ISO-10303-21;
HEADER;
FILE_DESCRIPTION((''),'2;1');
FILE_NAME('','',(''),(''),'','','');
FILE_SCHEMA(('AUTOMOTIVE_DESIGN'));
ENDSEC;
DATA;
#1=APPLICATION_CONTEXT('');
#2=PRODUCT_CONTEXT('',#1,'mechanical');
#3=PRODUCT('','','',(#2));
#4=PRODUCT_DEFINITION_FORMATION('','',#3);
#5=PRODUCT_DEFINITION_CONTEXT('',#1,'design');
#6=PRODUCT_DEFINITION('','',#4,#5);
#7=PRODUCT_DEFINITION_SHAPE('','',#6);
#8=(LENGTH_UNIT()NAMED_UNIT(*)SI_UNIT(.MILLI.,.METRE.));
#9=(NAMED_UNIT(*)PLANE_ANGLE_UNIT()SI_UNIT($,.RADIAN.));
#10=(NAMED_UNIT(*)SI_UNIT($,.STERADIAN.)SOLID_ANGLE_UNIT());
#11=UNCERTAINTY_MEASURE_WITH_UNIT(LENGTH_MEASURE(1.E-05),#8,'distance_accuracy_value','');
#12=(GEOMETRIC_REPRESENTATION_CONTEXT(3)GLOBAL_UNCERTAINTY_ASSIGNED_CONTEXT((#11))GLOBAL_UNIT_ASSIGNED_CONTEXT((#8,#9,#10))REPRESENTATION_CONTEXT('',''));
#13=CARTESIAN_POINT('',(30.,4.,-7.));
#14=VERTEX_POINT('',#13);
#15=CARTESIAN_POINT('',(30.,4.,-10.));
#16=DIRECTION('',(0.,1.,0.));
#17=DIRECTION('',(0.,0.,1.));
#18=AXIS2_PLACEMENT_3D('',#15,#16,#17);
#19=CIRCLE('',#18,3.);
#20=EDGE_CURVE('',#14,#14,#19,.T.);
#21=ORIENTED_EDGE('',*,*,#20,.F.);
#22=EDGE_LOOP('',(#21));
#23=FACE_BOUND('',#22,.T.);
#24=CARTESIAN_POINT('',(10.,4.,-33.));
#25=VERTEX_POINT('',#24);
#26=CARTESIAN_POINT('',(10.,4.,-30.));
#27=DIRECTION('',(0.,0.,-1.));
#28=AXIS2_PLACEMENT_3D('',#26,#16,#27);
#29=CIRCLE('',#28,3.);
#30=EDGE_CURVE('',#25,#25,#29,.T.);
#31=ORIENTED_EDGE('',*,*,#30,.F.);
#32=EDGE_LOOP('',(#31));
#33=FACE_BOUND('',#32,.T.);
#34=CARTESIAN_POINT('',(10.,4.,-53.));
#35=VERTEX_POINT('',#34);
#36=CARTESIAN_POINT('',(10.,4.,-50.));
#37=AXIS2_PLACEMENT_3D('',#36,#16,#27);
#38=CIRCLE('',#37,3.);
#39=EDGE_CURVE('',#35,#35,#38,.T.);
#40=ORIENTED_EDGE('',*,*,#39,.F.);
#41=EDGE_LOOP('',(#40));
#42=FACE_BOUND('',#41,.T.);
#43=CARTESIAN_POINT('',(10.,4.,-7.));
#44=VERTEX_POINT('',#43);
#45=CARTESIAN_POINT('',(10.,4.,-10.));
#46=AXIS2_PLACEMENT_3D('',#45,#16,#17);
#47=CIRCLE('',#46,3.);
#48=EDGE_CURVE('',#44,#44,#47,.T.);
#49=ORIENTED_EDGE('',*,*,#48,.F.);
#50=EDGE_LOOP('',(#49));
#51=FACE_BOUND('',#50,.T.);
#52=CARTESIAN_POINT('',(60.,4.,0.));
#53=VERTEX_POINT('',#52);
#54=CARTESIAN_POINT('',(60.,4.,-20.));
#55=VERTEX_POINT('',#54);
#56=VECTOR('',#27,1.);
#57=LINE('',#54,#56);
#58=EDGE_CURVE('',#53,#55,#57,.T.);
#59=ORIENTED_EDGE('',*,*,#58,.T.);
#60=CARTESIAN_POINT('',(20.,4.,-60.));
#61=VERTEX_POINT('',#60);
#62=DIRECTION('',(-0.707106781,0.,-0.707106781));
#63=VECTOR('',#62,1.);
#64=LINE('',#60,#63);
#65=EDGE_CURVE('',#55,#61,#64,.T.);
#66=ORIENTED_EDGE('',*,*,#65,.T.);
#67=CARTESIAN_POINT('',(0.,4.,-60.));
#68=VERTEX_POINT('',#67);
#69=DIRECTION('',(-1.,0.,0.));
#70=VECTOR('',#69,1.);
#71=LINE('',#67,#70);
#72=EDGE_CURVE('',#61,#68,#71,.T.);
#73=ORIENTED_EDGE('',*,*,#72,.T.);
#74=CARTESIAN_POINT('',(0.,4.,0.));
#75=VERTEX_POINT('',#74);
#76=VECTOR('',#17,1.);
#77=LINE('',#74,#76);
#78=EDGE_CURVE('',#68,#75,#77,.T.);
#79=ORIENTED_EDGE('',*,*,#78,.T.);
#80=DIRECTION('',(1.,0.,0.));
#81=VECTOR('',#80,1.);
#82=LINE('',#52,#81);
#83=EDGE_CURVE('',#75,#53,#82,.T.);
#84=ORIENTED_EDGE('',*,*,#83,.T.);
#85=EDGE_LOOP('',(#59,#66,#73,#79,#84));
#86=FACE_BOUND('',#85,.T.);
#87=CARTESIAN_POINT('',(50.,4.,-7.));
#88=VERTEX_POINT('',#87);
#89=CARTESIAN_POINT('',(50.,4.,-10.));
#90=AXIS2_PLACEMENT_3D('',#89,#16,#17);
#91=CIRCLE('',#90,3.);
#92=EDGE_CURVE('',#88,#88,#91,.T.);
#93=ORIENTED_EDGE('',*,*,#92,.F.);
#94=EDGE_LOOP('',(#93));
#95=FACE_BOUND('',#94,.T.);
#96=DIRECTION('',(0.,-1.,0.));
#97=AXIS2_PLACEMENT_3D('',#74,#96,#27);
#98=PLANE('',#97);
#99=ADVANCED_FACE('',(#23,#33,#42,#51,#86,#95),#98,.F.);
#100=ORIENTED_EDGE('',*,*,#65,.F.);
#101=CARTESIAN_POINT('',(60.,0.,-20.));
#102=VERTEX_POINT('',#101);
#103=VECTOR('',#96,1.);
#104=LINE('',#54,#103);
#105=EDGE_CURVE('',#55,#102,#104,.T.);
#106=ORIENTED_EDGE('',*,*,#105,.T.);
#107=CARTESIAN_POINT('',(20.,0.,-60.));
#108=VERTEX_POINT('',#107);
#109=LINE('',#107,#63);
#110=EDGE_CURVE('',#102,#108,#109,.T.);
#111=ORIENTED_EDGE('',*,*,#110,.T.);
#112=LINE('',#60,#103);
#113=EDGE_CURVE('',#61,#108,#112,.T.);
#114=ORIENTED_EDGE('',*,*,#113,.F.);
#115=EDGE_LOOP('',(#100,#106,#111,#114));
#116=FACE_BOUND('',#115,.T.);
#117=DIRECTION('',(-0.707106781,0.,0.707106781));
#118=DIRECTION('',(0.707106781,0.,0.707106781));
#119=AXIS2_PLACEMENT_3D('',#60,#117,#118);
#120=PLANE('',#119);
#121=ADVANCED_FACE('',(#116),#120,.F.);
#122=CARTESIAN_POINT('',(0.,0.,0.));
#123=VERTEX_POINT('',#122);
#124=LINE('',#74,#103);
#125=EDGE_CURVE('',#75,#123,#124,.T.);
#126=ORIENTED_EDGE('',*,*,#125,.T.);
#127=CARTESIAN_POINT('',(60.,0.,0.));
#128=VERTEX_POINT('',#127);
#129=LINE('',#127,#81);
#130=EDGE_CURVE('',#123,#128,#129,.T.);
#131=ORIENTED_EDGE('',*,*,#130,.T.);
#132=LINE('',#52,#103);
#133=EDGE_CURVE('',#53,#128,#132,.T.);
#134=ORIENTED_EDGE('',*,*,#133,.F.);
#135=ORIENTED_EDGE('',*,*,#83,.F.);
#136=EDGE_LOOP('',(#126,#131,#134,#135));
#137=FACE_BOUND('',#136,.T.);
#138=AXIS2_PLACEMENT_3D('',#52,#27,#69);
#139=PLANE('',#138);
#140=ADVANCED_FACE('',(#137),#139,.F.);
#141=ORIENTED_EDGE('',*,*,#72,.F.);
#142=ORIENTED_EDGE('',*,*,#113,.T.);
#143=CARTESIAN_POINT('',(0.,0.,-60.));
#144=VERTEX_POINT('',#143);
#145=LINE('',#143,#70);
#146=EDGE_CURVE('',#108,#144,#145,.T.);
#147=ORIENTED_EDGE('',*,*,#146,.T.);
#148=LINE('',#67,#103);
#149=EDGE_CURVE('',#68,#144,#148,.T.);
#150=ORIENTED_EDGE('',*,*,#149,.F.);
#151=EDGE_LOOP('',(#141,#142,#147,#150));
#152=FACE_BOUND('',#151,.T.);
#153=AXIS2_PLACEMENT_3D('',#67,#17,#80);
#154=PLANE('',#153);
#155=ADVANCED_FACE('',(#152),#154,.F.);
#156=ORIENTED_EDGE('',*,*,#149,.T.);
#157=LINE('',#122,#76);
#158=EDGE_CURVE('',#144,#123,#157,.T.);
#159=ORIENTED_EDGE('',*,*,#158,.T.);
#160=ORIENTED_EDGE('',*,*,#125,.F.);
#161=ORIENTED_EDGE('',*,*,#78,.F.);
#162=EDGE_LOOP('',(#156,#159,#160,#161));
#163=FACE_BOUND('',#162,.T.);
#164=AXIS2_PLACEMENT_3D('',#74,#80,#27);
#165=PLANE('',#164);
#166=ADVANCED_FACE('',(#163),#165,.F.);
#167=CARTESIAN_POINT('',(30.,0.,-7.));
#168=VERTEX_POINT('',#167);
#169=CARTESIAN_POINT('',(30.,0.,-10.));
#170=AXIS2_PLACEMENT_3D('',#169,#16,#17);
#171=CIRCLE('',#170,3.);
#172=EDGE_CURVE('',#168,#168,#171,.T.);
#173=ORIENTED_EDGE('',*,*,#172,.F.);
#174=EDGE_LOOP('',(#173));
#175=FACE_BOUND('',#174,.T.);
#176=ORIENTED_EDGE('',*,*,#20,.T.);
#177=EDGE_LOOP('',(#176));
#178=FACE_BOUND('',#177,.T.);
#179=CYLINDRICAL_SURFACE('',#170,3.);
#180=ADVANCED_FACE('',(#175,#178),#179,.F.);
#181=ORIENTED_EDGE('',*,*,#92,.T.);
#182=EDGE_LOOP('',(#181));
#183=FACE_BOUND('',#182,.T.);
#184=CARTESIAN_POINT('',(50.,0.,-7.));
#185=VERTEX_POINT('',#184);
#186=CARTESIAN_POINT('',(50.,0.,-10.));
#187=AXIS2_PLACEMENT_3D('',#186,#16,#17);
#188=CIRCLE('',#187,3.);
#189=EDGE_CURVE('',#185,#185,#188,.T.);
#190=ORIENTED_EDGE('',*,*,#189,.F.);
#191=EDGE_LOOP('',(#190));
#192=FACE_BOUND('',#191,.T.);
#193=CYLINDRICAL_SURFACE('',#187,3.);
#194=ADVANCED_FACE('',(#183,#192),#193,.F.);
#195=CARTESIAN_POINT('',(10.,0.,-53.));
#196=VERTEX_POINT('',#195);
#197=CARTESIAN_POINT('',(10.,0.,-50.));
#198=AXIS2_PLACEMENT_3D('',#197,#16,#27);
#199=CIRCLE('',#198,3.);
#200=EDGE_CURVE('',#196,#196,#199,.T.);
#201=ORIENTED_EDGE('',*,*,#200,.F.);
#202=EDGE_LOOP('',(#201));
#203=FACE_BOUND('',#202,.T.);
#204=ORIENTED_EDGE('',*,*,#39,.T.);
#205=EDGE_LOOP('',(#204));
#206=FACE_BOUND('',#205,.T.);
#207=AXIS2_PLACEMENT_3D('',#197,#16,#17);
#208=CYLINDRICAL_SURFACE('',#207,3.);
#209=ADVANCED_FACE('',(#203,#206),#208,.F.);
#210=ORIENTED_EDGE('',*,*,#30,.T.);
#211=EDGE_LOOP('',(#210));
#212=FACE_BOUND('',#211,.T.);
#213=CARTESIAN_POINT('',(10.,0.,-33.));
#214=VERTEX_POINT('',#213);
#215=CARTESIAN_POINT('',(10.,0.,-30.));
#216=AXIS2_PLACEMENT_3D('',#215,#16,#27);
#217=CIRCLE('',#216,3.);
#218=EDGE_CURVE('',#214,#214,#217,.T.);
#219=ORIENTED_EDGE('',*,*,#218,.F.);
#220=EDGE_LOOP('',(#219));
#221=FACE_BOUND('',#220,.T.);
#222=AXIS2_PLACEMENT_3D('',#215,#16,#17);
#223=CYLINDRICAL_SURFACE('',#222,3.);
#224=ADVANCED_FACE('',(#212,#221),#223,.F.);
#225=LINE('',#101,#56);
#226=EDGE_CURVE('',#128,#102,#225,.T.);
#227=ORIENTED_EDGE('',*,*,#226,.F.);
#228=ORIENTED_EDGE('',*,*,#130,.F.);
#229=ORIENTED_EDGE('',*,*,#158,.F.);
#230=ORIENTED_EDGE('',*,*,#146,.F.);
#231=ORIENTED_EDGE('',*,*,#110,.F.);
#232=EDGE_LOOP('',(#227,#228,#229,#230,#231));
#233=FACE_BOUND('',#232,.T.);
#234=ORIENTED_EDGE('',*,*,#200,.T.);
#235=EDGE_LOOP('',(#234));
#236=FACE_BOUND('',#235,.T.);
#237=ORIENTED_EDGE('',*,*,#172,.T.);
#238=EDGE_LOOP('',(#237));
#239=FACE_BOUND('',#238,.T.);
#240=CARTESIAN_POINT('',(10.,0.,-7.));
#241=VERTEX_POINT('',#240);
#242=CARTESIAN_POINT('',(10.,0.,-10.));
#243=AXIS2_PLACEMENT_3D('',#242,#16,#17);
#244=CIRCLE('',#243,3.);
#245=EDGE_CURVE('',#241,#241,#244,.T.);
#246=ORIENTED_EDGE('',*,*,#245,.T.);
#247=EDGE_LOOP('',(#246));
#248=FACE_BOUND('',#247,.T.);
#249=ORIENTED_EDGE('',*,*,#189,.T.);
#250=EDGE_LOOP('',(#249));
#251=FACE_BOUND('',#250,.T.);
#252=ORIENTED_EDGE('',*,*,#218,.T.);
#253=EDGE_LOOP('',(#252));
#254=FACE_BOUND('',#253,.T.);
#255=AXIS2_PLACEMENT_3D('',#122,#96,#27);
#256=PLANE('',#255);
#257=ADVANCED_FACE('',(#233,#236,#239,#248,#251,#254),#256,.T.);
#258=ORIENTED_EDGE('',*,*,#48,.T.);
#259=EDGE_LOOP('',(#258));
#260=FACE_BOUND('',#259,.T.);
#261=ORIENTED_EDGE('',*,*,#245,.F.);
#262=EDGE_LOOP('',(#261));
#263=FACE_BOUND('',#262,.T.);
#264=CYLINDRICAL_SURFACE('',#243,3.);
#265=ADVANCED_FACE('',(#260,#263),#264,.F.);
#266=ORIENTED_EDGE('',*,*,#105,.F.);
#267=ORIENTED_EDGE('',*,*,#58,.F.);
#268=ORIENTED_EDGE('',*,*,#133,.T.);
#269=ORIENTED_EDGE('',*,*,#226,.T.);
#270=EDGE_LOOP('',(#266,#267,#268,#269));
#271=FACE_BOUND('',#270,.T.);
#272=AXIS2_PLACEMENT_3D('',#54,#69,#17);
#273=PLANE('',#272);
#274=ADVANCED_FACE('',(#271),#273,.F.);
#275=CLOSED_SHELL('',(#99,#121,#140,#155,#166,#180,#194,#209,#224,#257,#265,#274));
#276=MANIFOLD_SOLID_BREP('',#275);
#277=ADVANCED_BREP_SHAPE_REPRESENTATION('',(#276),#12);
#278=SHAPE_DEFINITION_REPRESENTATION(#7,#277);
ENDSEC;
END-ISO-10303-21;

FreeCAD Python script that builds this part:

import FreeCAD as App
import Part
import Sketcher

doc = App.newDocument("Part")
body = doc.addObject("PartDesign::Body", "Body")

sketch1 = doc.addObject("Sketcher::SketchObject", "Sketch")
body.addObject(sketch1)
sketch1.AttachmentSupport = (doc.XZ_Plane, [""])
sketch1.MapMode = "FlatFace"
sketch1.addGeometry([
    Part.LineSegment(App.Vector(0, -60, 0), App.Vector(0, 0, 0)),
    Part.LineSegment(App.Vector(0, 0, 0), App.Vector(60, 0, 0)),
    Part.LineSegment(App.Vector(60, 0, 0), App.Vector(60, -20, 0)),
    Part.LineSegment(App.Vector(60, -20, 0), App.Vector(20, -60, 0)),
    Part.LineSegment(App.Vector(20, -60, 0), App.Vector(0, -60, 0)),
], False)
sketch1.addConstraint([
    Sketcher.Constraint("Coincident", 0, 2, 1, 1),
    Sketcher.Constraint("Coincident", 1, 2, 2, 1),
    Sketcher.Constraint("Coincident", 2, 2, 3, 1),
    Sketcher.Constraint("Coincident", 3, 2, 4, 1),
    Sketcher.Constraint("Coincident", 4, 2, 0, 1),
    Sketcher.Constraint("Vertical", 0),
    Sketcher.Constraint("Horizontal", 1),
    Sketcher.Constraint("Vertical", 2),
    Sketcher.Constraint("Horizontal", 4),
    Sketcher.Constraint("Coincident", 0, 2, -1, 1),
    Sketcher.Constraint("Equal", 1, 0),
    Sketcher.Constraint("Equal", 4, 2),
    Sketcher.Constraint("DistanceX", 1, 1, 1, 2, 60.0),
    Sketcher.Constraint("DistanceX", 4, 2, 4, 1, 20.0),
])
pad1 = doc.addObject("PartDesign::Pad", "Pad")
body.addObject(pad1)
pad1.Profile = sketch1
pad1.Length = 4
pad1.Reversed = True

sketch2 = doc.addObject("Sketcher::SketchObject", "Sketch001")
body.addObject(sketch2)
sketch2.AttachmentSupport = (doc.XZ_Plane, [""])
sketch2.MapMode = "FlatFace"
sketch2.AttachmentOffset = App.Placement(App.Vector(0, 0, -4), App.Rotation())
sketch2.addGeometry([
    Part.Circle(App.Vector(10, -10, 0), App.Vector(0, 0, 1), 3),
    Part.Circle(App.Vector(30, -10, 0), App.Vector(0, 0, 1), 3),
    Part.Circle(App.Vector(50, -10, 0), App.Vector(0, 0, 1), 3),
    Part.Circle(App.Vector(10, -50, 0), App.Vector(0, 0, 1), 3),
    Part.Circle(App.Vector(10, -30, 0), App.Vector(0, 0, 1), 3),
], False)
sketch2.addConstraint([
    Sketcher.Constraint("Equal", 0, 1),
    Sketcher.Constraint("Equal", 1, 2),
    Sketcher.Constraint("Equal", 2, 3),
    Sketcher.Constraint("Equal", 3, 4),
    Sketcher.Constraint("Horizontal", 0, 3, 1, 3),
    Sketcher.Constraint("Horizontal", 1, 3, 2, 3),
    Sketcher.Constraint("Vertical", 0, 3, 3, 3),
    Sketcher.Constraint("Vertical", 3, 3, 4, 3),
    Sketcher.Constraint("Diameter", 0, 6.0),
    Sketcher.Constraint("DistanceX", -1, 1, 0, 3, 10.0),
    Sketcher.Constraint("DistanceY", 0, 3, -1, 1, 10.0),
    Sketcher.Constraint("DistanceX", -1, 1, 1, 3, 30.0),
    Sketcher.Constraint("DistanceX", -1, 1, 2, 3, 50.0),
    Sketcher.Constraint("DistanceY", 3, 3, -1, 1, 50.0),
    Sketcher.Constraint("DistanceY", 4, 3, -1, 1, 30.0),
])
pocket1 = doc.addObject("PartDesign::Pocket", "Pocket")
body.addObject(pocket1)
pocket1.Profile = sketch2
pocket1.Type = "ThroughAll"
pocket1.Reversed = True

doc.recompute()
